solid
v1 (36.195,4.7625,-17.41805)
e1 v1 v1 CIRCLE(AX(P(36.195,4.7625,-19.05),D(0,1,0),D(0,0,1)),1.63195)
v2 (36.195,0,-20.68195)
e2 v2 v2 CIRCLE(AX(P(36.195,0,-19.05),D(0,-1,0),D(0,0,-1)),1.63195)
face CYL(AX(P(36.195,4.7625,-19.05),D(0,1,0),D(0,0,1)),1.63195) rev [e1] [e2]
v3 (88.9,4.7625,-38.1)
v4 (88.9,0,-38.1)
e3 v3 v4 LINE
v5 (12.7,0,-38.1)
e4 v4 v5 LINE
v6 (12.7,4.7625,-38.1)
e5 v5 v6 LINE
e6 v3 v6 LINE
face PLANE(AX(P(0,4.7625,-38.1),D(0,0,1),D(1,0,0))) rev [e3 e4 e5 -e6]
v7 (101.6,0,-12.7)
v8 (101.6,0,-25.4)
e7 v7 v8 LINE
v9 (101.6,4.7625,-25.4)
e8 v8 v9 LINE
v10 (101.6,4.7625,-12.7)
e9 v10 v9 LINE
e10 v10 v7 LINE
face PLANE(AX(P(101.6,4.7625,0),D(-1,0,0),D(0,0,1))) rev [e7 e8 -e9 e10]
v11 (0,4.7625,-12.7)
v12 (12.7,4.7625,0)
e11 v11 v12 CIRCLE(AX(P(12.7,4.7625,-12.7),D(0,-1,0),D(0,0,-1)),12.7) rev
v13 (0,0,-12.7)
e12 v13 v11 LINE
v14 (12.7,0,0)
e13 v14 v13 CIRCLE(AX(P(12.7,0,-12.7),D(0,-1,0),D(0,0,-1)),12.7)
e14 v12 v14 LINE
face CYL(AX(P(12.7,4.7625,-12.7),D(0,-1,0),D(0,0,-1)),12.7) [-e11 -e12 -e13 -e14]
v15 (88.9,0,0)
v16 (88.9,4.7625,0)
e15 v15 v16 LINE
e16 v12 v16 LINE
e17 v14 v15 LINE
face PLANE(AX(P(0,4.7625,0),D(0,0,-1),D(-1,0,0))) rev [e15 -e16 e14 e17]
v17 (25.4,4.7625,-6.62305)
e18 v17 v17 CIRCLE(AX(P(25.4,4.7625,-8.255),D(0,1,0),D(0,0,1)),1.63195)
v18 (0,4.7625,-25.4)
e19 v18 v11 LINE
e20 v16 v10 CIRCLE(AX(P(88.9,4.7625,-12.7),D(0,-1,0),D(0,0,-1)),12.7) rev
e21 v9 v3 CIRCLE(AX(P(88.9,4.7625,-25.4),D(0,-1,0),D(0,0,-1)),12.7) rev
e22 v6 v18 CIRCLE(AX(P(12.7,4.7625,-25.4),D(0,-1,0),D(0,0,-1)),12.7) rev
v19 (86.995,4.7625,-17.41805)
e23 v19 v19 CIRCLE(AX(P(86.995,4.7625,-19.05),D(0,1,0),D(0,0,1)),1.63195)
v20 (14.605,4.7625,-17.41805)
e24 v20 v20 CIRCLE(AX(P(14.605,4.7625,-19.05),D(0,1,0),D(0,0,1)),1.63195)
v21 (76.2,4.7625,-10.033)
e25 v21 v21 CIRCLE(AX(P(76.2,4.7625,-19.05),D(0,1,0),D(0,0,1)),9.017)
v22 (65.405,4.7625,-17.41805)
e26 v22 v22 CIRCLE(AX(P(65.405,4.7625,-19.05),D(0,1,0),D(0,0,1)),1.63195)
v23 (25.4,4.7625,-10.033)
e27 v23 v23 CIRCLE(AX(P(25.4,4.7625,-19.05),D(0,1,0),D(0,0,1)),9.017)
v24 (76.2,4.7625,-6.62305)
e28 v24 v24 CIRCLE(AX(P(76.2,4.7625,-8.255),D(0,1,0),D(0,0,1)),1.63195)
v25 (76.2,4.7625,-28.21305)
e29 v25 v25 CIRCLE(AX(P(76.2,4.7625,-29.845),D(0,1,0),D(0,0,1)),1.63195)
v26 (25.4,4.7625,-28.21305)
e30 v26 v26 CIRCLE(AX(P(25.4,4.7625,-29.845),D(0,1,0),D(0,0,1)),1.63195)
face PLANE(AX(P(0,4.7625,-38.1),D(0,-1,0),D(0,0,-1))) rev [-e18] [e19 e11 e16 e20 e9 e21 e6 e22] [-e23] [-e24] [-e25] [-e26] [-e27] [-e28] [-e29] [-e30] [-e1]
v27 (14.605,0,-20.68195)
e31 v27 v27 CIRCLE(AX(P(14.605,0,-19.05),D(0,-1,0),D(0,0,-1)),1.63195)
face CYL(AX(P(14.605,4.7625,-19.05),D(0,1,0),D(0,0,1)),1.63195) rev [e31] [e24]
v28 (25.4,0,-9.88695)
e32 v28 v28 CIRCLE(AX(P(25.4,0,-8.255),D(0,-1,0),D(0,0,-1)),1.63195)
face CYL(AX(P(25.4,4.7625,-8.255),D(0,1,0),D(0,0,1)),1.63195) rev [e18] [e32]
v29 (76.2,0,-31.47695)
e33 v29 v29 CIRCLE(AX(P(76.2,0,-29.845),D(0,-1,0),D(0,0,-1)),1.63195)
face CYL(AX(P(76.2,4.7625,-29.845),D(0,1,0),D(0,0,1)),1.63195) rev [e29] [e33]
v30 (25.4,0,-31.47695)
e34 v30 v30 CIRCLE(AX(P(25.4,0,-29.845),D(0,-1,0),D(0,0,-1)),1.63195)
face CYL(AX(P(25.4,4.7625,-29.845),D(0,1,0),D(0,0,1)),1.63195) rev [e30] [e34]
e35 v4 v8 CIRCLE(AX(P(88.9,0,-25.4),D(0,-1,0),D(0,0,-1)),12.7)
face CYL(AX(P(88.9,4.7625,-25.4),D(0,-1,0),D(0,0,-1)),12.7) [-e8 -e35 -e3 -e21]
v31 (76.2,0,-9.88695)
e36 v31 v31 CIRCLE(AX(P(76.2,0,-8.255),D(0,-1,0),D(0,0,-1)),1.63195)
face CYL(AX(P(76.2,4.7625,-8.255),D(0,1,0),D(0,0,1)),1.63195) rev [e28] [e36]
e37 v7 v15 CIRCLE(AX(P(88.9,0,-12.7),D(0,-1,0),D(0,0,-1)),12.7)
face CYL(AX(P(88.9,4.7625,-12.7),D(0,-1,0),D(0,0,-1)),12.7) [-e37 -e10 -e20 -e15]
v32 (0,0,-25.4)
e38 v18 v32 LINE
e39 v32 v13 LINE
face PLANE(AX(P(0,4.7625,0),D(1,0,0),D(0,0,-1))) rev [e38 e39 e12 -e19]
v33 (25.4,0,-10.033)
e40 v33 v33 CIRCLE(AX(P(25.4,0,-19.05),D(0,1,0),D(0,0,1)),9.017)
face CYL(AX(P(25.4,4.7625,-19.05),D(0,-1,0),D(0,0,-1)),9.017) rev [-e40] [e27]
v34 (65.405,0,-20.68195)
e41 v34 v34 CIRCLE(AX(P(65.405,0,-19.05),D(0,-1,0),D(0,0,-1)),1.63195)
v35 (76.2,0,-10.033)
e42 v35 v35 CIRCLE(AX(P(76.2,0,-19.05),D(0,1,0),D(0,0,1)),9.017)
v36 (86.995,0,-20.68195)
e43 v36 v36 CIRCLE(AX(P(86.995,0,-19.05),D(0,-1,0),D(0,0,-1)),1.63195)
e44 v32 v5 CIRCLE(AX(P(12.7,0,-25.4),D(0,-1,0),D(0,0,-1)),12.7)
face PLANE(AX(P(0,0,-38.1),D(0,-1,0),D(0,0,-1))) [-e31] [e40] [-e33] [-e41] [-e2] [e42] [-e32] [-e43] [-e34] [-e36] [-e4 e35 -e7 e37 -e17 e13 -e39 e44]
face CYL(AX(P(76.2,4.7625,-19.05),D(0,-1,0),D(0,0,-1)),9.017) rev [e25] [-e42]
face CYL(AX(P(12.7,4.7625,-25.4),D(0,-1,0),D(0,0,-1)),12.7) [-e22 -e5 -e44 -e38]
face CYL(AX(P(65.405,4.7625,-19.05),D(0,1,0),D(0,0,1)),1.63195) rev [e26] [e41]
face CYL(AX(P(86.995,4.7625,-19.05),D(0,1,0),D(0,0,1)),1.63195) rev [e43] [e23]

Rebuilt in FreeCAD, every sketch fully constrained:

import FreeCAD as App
import Part
import Sketcher

V = App.Vector
Q = App.Units.Quantity


def edges_at(feature, points):
    """Names of the edges that pass closest to the given points."""
    edges = feature.Shape.Edges
    near = lambda p: min(range(len(edges)), key=lambda i: edges[i].distToShape(Part.Vertex(*p))[0])
    return sorted({f"Edge{near(p) + 1}" for p in points})

doc = App.newDocument("Part")
body = doc.addObject("PartDesign::Body", "Body")

# Sketch on XZ plane
sketch1 = body.newObject("Sketcher::SketchObject", "Sketch")
sketch1.AttachmentSupport = (doc.getObject("XZ_Plane"), [""])
sketch1.MapMode = "FlatFace"
sketch1.addGeometry([
    Part.LineSegment(V(0, -38.1, 0), V(0, 0, 0)),  # 0
    Part.LineSegment(V(0, 0, 0), V(101.6, 0, 0)),  # 1
    Part.LineSegment(V(101.6, 0, 0), V(101.6, -38.1, 0)),  # 2
    Part.LineSegment(V(101.6, -38.1, 0), V(0, -38.1, 0)),  # 3
    Part.Circle(V(25.4, -19.05, 0), V(0, 0, 1), 9.017),  # 4
    Part.Circle(V(76.2, -19.05, 0), V(0, 0, 1), 9.017),  # 5
], False)
sketch1.addConstraint([
    Sketcher.Constraint("Coincident", 0, 2, 1, 1),
    Sketcher.Constraint("Coincident", 1, 2, 2, 1),
    Sketcher.Constraint("Coincident", 2, 2, 3, 1),
    Sketcher.Constraint("Coincident", 3, 2, 0, 1),
    Sketcher.Constraint("Vertical", 0),
    Sketcher.Constraint("Horizontal", 1),
    Sketcher.Constraint("Vertical", 2),
    Sketcher.Constraint("Horizontal", 3),
    Sketcher.Constraint("Coincident", 0, 2, -1, 1),
    Sketcher.Constraint("Equal", 4, 5),
    Sketcher.Constraint("Horizontal", 4, 3, 5, 3),
    Sketcher.Constraint("Diameter", 4, Q("0.71 in")),
    Sketcher.Constraint("DistanceX", 1, 1, 1, 2, Q("4 in")),
    Sketcher.Constraint("DistanceY", 0, 1, 0, 2, Q("1.5 in")),
    Sketcher.Constraint("DistanceX", -1, 1, 4, 3, Q("1 in")),
    Sketcher.Constraint("DistanceX", -1, 1, 5, 3, Q("3 in")),
    Sketcher.Constraint("DistanceY", 4, 3, -1, 1, Q("0.75 in")),
])
pad1 = body.newObject("PartDesign::Pad", "Pad")
pad1.Profile = sketch1
pad1.Length = Q("0.1875 in")
pad1.Reversed = True

# Sketch on XZ plane
sketch2 = body.newObject("Sketcher::SketchObject", "Sketch001")
sketch2.AttachmentSupport = (doc.getObject("XZ_Plane"), [""])
sketch2.MapMode = "FlatFace"
sketch2.AttachmentOffset = App.Placement(V(0, 0, -0.1875 * 25.4), App.Rotation())
sketch2.addGeometry([
    Part.Circle(V(25.4, -29.845, 0), V(0, 0, 1), 1.63195),  # 0
    Part.Circle(V(36.195, -19.05, 0), V(0, 0, 1), 1.63195),  # 1
    Part.Circle(V(25.4, -8.255, 0), V(0, 0, 1), 1.63195),  # 2
    Part.Circle(V(14.605, -19.05, 0), V(0, 0, 1), 1.63195),  # 3
    Part.Circle(V(65.405, -19.05, 0), V(0, 0, 1), 1.63195),  # 4
    Part.Circle(V(76.2, -29.845, 0), V(0, 0, 1), 1.63195),  # 5
    Part.Circle(V(86.995, -19.05, 0), V(0, 0, 1), 1.63195),  # 6
    Part.Circle(V(76.2, -8.255, 0), V(0, 0, 1), 1.63195),  # 7
], False)
sketch2.addConstraint([
    Sketcher.Constraint("Equal", 0, 1),
    Sketcher.Constraint("Equal", 1, 2),
    Sketcher.Constraint("Equal", 2, 3),
    Sketcher.Constraint("Equal", 3, 4),
    Sketcher.Constraint("Equal", 4, 5),
    Sketcher.Constraint("Equal", 5, 6),
    Sketcher.Constraint("Equal", 6, 7),
    Sketcher.Constraint("Horizontal", 1, 3, 3, 3),
    Sketcher.Constraint("Horizontal", 3, 3, 4, 3),
    Sketcher.Constraint("Horizontal", 0, 3, 5, 3),
    Sketcher.Constraint("Horizontal", 4, 3, 6, 3),
    Sketcher.Constraint("Horizontal", 2, 3, 7, 3),
    Sketcher.Constraint("Vertical", 0, 3, 2, 3),
    Sketcher.Constraint("Vertical", 5, 3, 7, 3),
    Sketcher.Constraint("DistanceX", -1, 1, 0, 3, Q("1 in")),
    Sketcher.Constraint("DistanceX", -1, 1, 5, 3, Q("3 in")),
    Sketcher.Constraint("DistanceX", 3, 3, 4, 3, Q("2 in")),
    Sketcher.Constraint("DistanceX", 1, 3, 6, 3, Q("2 in")),
    Sketcher.Constraint("Diameter", 0, Q("0.1285 in")),
    Sketcher.Constraint("DistanceY", 1, 3, -1, 1, Q("0.75 in")),
    Sketcher.Constraint("DistanceY", 0, 3, 2, 3, Q("0.85 in")),
    Sketcher.Constraint("DistanceX", 3, 3, 1, 3, Q("0.85 in")),
    Sketcher.Constraint("DistanceY", 0, 3, -1, 1, Q("1.175 in")),
    Sketcher.Constraint("DistanceX", -1, 1, 1, 3, Q("1.425 in")),
])
doc.recompute()
hole = body.newObject("PartDesign::Hole", "Hole")
hole.Profile = sketch2
hole.ThreadType = "None"
hole.Diameter = Q("0.1285 in")
hole.DepthType = "Dimension"
hole.Depth = Q("1 in")
hole.DrillPoint = "Angled"
hole.DrillPointAngle = 118
hole.Reversed = True
doc.recompute()

fillet = body.newObject("PartDesign::Fillet", "Fillet")
fillet.Base = (hole, edges_at(hole, [
    (0, 2.381, -38.1),
    (101.6, 2.381, -38.1),
    (101.6, 2.381, 0),
    (0, 2.381, 0),
]))
fillet.Radius = Q("0.5 in")

doc.recompute()
